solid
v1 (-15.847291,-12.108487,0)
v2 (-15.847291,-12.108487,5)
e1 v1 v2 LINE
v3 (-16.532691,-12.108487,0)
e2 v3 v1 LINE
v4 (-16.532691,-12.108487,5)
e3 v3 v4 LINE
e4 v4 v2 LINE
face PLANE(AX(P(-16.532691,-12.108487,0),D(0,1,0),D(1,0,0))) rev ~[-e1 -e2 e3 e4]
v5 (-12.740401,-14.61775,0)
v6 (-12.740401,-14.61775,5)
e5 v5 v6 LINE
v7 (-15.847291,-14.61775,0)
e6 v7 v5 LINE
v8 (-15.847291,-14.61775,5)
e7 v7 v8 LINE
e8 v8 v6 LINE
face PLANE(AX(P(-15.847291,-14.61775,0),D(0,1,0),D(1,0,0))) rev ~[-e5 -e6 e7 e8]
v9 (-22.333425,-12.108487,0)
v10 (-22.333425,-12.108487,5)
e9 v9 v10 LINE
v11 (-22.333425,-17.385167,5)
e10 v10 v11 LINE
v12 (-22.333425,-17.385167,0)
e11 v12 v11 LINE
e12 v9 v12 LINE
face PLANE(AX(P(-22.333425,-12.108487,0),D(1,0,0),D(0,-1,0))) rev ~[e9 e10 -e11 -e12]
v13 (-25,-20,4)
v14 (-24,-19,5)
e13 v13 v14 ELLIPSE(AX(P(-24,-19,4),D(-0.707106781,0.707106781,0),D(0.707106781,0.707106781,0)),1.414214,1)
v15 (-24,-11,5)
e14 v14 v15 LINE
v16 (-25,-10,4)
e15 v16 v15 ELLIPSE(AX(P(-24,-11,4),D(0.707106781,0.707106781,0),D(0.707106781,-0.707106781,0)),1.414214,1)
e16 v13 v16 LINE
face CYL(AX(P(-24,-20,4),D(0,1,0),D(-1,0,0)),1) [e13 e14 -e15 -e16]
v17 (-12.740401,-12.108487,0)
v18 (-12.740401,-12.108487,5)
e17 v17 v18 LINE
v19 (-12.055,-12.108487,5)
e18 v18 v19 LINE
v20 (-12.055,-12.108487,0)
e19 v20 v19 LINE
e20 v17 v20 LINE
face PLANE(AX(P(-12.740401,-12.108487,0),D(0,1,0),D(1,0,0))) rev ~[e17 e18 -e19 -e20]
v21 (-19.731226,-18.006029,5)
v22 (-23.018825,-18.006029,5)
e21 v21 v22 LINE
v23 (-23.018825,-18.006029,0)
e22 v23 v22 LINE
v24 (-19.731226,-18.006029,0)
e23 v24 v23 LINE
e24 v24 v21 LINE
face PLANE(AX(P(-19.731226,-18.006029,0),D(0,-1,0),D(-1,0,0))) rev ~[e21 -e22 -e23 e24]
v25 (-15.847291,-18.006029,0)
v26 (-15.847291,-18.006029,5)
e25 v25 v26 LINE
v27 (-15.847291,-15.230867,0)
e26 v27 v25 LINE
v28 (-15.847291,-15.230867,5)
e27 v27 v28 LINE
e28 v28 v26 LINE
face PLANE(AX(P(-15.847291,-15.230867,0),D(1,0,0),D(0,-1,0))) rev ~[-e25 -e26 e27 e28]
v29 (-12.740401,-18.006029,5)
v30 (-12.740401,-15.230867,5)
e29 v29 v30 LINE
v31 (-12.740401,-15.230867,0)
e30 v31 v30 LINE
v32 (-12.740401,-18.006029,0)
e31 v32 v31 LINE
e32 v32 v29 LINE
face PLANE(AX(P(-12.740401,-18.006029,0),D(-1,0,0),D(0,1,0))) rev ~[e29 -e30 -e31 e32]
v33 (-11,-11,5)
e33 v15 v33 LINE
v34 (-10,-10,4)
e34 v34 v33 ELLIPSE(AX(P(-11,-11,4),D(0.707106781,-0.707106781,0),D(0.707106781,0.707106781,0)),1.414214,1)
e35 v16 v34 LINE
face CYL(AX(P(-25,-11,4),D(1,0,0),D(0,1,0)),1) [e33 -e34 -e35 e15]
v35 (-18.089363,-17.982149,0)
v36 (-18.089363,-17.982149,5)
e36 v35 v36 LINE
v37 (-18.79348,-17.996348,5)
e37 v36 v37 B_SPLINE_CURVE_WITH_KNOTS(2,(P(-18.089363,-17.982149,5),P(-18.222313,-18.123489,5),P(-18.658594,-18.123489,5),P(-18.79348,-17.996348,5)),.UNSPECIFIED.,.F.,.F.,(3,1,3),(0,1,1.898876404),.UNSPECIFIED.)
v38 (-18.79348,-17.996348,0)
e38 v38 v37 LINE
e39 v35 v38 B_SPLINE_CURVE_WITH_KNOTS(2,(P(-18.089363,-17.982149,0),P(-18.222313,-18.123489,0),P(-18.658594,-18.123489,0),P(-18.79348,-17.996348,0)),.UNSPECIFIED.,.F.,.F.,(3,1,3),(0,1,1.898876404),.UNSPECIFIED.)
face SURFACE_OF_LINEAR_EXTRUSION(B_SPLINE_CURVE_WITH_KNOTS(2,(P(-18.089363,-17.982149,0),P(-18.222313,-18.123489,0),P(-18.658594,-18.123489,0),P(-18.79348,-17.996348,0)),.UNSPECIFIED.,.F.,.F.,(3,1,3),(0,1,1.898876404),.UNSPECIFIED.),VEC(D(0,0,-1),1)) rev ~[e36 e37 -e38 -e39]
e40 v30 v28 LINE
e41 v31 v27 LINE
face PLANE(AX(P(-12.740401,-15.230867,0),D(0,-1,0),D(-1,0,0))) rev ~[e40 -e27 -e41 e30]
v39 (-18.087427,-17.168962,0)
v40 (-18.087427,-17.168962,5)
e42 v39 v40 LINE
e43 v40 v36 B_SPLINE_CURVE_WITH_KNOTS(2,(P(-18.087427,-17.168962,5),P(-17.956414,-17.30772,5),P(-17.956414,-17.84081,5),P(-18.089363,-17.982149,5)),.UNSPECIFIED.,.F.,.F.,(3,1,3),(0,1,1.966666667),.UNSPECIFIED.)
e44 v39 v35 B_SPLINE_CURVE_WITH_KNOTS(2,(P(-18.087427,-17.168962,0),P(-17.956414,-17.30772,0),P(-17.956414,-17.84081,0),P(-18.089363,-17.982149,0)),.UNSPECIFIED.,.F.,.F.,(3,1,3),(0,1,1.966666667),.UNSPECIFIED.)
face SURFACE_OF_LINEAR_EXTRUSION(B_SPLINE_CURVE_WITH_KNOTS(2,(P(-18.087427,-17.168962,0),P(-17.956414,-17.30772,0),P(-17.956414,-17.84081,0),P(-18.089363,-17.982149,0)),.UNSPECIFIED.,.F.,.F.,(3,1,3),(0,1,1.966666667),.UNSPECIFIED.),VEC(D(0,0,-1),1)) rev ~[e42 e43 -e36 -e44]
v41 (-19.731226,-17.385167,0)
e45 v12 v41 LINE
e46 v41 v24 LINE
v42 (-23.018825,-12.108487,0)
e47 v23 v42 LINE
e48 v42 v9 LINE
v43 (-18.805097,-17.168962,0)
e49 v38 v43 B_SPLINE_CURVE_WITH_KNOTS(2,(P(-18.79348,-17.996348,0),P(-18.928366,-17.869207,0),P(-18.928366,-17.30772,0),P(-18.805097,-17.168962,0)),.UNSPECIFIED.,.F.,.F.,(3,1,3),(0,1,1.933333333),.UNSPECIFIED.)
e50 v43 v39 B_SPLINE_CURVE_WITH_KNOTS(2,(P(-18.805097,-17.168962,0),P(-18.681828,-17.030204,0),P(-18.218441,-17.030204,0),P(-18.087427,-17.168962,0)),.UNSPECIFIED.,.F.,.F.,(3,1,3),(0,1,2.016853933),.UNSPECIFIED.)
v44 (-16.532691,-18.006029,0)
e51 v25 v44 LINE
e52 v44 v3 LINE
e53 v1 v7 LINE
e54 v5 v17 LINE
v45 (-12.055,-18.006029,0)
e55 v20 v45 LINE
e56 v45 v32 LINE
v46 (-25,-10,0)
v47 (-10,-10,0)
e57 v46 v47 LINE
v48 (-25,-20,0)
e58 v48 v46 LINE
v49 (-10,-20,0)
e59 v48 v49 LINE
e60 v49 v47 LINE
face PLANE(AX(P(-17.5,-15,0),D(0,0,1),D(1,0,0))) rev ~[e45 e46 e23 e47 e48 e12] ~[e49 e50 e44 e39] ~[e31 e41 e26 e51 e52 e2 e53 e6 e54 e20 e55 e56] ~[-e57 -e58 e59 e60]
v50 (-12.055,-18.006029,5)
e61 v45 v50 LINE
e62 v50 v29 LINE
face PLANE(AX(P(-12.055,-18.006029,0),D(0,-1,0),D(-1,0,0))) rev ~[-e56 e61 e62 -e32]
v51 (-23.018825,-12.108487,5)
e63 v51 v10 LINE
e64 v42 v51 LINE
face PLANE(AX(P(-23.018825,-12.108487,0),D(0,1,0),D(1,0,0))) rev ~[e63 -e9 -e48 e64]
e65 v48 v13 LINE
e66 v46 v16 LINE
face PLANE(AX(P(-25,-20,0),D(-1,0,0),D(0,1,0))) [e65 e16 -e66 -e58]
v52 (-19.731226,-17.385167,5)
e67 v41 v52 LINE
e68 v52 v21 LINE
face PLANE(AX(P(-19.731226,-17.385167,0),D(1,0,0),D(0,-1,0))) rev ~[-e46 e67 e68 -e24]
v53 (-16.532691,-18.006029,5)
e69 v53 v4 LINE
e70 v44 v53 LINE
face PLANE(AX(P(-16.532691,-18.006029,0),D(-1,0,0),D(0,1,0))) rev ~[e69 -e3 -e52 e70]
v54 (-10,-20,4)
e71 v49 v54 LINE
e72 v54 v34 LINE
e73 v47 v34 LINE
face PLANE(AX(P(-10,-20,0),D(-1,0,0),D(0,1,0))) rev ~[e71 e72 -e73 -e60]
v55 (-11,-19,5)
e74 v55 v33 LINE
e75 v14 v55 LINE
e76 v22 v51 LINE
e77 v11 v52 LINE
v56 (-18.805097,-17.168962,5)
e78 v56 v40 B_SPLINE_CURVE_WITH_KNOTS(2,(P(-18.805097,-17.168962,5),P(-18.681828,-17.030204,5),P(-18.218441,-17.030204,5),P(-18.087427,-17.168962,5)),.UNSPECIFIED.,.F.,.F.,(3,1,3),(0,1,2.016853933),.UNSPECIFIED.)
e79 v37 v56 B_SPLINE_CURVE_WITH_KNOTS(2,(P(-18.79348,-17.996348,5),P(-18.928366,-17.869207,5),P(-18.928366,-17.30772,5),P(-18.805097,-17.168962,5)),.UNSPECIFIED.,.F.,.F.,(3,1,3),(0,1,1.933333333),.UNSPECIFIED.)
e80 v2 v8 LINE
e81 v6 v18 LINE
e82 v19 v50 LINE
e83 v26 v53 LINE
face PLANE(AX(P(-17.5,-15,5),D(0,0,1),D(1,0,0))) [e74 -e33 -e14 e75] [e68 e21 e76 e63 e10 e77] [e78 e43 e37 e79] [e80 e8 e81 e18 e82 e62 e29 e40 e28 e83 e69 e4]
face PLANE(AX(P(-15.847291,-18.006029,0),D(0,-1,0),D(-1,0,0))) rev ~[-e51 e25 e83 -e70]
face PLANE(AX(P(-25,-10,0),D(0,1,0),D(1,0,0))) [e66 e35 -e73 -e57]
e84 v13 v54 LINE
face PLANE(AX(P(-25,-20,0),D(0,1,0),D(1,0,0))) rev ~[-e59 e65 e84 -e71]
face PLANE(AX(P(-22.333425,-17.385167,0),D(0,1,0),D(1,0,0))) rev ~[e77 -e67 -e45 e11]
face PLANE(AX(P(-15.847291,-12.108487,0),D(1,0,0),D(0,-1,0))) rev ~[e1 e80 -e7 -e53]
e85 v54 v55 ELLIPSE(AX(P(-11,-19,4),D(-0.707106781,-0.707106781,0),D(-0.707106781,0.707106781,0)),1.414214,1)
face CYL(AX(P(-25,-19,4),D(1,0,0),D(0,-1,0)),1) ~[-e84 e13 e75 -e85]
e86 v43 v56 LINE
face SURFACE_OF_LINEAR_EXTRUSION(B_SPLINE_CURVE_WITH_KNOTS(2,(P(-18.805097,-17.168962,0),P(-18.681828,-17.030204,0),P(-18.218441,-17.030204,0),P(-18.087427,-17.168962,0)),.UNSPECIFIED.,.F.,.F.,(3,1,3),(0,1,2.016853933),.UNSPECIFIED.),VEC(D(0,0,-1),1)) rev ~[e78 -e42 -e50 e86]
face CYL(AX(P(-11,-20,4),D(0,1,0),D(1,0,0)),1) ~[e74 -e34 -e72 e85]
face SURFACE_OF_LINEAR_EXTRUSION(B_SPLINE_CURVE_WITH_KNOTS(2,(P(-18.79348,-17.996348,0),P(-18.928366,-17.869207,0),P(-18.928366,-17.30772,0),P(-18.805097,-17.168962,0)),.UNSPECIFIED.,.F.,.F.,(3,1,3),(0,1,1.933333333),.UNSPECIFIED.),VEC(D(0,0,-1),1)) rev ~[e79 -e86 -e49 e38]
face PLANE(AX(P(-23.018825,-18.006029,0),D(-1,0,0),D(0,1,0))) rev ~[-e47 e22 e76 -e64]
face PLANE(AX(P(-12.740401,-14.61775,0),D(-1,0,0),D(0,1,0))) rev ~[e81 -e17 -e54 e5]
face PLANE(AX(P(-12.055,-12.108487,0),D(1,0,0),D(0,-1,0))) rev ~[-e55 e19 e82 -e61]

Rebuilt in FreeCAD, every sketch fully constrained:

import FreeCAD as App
import Part
import Sketcher

V = App.Vector
Q = App.Units.Quantity


def edges_at(feature, points):
    """Names of the edges that pass closest to the given points."""
    edges = feature.Shape.Edges
    near = lambda p: min(range(len(edges)), key=lambda i: edges[i].distToShape(Part.Vertex(*p))[0])
    return sorted({f"Edge{near(p) + 1}" for p in points})

doc = App.newDocument("Part")
body = doc.addObject("PartDesign::Body", "Body")

# Sketch on XY plane
sketch1 = doc.addObject("Sketcher::SketchObject", "Sketch")
body.addObject(sketch1)
sketch1.AttachmentSupport = (doc.XY_Plane, [""])
sketch1.MapMode = "FlatFace"
sketch1.addGeometry([
    Part.LineSegment(V(-25, -10, 0), V(-25, -20, 0)),  # 0
    Part.LineSegment(V(-25, -20, 0), V(-10, -20, 0)),  # 1
    Part.LineSegment(V(-10, -20, 0), V(-10, -10, 0)),  # 2
    Part.LineSegment(V(-10, -10, 0), V(-25, -10, 0)),  # 3
    Part.BSplineCurve([V(-18.089363, -17.982149, 0), V(-18.222313, -18.123489, 0), V(-18.658594, -18.123489, 0), V(-18.79348, -17.996348, 0)], [3, 1, 3], [0, 1, 1.898876404], False, 2, [1, 1, 1, 1], False),  # 4
    Part.BSplineCurve([V(-18.79348, -17.996348, 0), V(-18.928366, -17.869207, 0), V(-18.928366, -17.30772, 0), V(-18.805097, -17.168962, 0)], [3, 1, 3], [0, 1, 1.933333333], False, 2, [1, 1, 1, 1], False),  # 5
    Part.BSplineCurve([V(-18.805097, -17.168962, 0), V(-18.681828, -17.030204, 0), V(-18.218441, -17.030204, 0), V(-18.087427, -17.168962, 0)], [3, 1, 3], [0, 1, 2.016853933], False, 2, [1, 1, 1, 1], False),  # 6
    Part.BSplineCurve([V(-18.087427, -17.168962, 0), V(-17.956414, -17.30772, 0), V(-17.956414, -17.84081, 0), V(-18.089363, -17.982149, 0)], [3, 1, 3], [0, 1, 1.966666667], False, 2, [1, 1, 1, 1], False),  # 7
    Part.LineSegment(V(-19.731226, -17.385167, 0), V(-19.731226, -18.006029, 0)),  # 8
    Part.LineSegment(V(-19.731226, -18.006029, 0), V(-23.018825, -18.006029, 0)),  # 9
    Part.LineSegment(V(-23.018825, -18.006029, 0), V(-23.018825, -12.108487, 0)),  # 10
    Part.LineSegment(V(-23.018825, -12.108487, 0), V(-22.333425, -12.108487, 0)),  # 11
    Part.LineSegment(V(-22.333425, -12.108487, 0), V(-22.333425, -17.385167, 0)),  # 12
    Part.LineSegment(V(-22.333425, -17.385167, 0), V(-19.731226, -17.385167, 0)),  # 13
    Part.LineSegment(V(-12.740401, -12.108487, 0), V(-12.055, -12.108487, 0)),  # 14
    Part.LineSegment(V(-12.055, -12.108487, 0), V(-12.055, -18.006029, 0)),  # 15
    Part.LineSegment(V(-12.055, -18.006029, 0), V(-12.740401, -18.006029, 0)),  # 16
    Part.LineSegment(V(-12.740401, -18.006029, 0), V(-12.740401, -15.230867, 0)),  # 17
    Part.LineSegment(V(-12.740401, -15.230867, 0), V(-15.847291, -15.230867, 0)),  # 18
    Part.LineSegment(V(-15.847291, -15.230867, 0), V(-15.847291, -18.006029, 0)),  # 19
    Part.LineSegment(V(-15.847291, -18.006029, 0), V(-16.532691, -18.006029, 0)),  # 20
    Part.LineSegment(V(-16.532691, -18.006029, 0), V(-16.532691, -12.108487, 0)),  # 21
    Part.LineSegment(V(-16.532691, -12.108487, 0), V(-15.847291, -12.108487, 0)),  # 22
    Part.LineSegment(V(-15.847291, -12.108487, 0), V(-15.847291, -14.61775, 0)),  # 23
    Part.LineSegment(V(-15.847291, -14.61775, 0), V(-12.740401, -14.61775, 0)),  # 24
    Part.LineSegment(V(-12.740401, -14.61775, 0), V(-12.740401, -12.108487, 0)),  # 25
], False)
sketch1.addConstraint([
    Sketcher.Constraint("Block", 4),
    Sketcher.Constraint("Block", 5),
    Sketcher.Constraint("Block", 6),
    Sketcher.Constraint("Block", 7),
    Sketcher.Constraint("Coincident", 0, 2, 1, 1),
    Sketcher.Constraint("Coincident", 1, 2, 2, 1),
    Sketcher.Constraint("Coincident", 2, 2, 3, 1),
    Sketcher.Constraint("Coincident", 3, 2, 0, 1),
    Sketcher.Constraint("Coincident", 8, 2, 9, 1),
    Sketcher.Constraint("Coincident", 9, 2, 10, 1),
    Sketcher.Constraint("Coincident", 10, 2, 11, 1),
    Sketcher.Constraint("Coincident", 11, 2, 12, 1),
    Sketcher.Constraint("Coincident", 12, 2, 13, 1),
    Sketcher.Constraint("Coincident", 13, 2, 8, 1),
    Sketcher.Constraint("Coincident", 14, 2, 15, 1),
    Sketcher.Constraint("Coincident", 15, 2, 16, 1),
    Sketcher.Constraint("Coincident", 16, 2, 17, 1),
    Sketcher.Constraint("Coincident", 17, 2, 18, 1),
    Sketcher.Constraint("Coincident", 18, 2, 19, 1),
    Sketcher.Constraint("Coincident", 19, 2, 20, 1),
    Sketcher.Constraint("Coincident", 20, 2, 21, 1),
    Sketcher.Constraint("Coincident", 21, 2, 22, 1),
    Sketcher.Constraint("Coincident", 22, 2, 23, 1),
    Sketcher.Constraint("Coincident", 23, 2, 24, 1),
    Sketcher.Constraint("Coincident", 24, 2, 25, 1),
    Sketcher.Constraint("Coincident", 25, 2, 14, 1),
    Sketcher.Constraint("Vertical", 0),
    Sketcher.Constraint("Horizontal", 1),
    Sketcher.Constraint("Vertical", 2),
    Sketcher.Constraint("Horizontal", 3),
    Sketcher.Constraint("Vertical", 8),
    Sketcher.Constraint("Horizontal", 9),
    Sketcher.Constraint("Vertical", 10),
    Sketcher.Constraint("Horizontal", 11),
    Sketcher.Constraint("Vertical", 12),
    Sketcher.Constraint("Horizontal", 13),
    Sketcher.Constraint("Horizontal", 14),
    Sketcher.Constraint("Vertical", 15),
    Sketcher.Constraint("Horizontal", 16),
    Sketcher.Constraint("Vertical", 17),
    Sketcher.Constraint("Horizontal", 18),
    Sketcher.Constraint("Vertical", 19),
    Sketcher.Constraint("Horizontal", 20),
    Sketcher.Constraint("Vertical", 21),
    Sketcher.Constraint("Horizontal", 22),
    Sketcher.Constraint("Vertical", 23),
    Sketcher.Constraint("Horizontal", 24),
    Sketcher.Constraint("Vertical", 25),
    Sketcher.Constraint("Horizontal", 11, 2, 14, 2),
    Sketcher.Constraint("Horizontal", 9, 2, 15, 2),
    Sketcher.Constraint("Horizontal", 16, 2, 19, 2),
    Sketcher.Constraint("Horizontal", 14, 2, 21, 2),
    Sketcher.Constraint("Vertical", 19, 2, 22, 2),
    Sketcher.Constraint("Vertical", 17, 2, 24, 2),
    Sketcher.Constraint("Equal", 11, 14),
    Sketcher.Constraint("Equal", 16, 20),
    Sketcher.Constraint("DistanceX", 1, 1, 1, 2, Q("15 mm")),
    Sketcher.Constraint("DistanceY", 0, 2, 0, 1, Q("10 mm")),
    Sketcher.Constraint("DistanceX", 0, 2, -1, 1, Q("25 mm")),
    Sketcher.Constraint("DistanceY", 0, 2, -1, 1, Q("20 mm")),
    Sketcher.Constraint("DistanceX", 9, 2, 9, 1, Q("3.287598 mm")),
    Sketcher.Constraint("DistanceX", 11, 1, 11, 2, Q("0.6854 mm")),
    Sketcher.Constraint("DistanceX", 14, 2, -1, 1, Q("12.055 mm")),
    Sketcher.Constraint("DistanceX", 18, 2, 18, 1, Q("3.10689 mm")),
    Sketcher.Constraint("DistanceY", 8, 2, 8, 1, Q("0.620862 mm")),
    Sketcher.Constraint("DistanceY", 10, 1, 10, 2, Q("5.897541 mm")),
    Sketcher.Constraint("DistanceY", 17, 1, 17, 2, Q("2.775162 mm")),
    Sketcher.Constraint("DistanceY", 23, 2, 23, 1, Q("2.509262 mm")),
    Sketcher.Constraint("DistanceY", 8, 2, -1, 1, Q("18.006029 mm")),
    Sketcher.Constraint("DistanceX", 8, 2, -1, 1, Q("19.731226 mm")),
])
pad1 = doc.addObject("PartDesign::Pad", "Pad")
body.addObject(pad1)
pad1.Profile = sketch1
pad1.Length = 5
doc.recompute()

fillet = doc.addObject("PartDesign::Fillet", "Fillet")
body.addObject(fillet)
fillet.Base = (pad1, edges_at(pad1, [
    (-10, -15, 5),
    (-17.5, -10, 5),
    (-17.5, -20, 5),
    (-25, -15, 5),
]))
fillet.Radius = 1

doc.recompute()
